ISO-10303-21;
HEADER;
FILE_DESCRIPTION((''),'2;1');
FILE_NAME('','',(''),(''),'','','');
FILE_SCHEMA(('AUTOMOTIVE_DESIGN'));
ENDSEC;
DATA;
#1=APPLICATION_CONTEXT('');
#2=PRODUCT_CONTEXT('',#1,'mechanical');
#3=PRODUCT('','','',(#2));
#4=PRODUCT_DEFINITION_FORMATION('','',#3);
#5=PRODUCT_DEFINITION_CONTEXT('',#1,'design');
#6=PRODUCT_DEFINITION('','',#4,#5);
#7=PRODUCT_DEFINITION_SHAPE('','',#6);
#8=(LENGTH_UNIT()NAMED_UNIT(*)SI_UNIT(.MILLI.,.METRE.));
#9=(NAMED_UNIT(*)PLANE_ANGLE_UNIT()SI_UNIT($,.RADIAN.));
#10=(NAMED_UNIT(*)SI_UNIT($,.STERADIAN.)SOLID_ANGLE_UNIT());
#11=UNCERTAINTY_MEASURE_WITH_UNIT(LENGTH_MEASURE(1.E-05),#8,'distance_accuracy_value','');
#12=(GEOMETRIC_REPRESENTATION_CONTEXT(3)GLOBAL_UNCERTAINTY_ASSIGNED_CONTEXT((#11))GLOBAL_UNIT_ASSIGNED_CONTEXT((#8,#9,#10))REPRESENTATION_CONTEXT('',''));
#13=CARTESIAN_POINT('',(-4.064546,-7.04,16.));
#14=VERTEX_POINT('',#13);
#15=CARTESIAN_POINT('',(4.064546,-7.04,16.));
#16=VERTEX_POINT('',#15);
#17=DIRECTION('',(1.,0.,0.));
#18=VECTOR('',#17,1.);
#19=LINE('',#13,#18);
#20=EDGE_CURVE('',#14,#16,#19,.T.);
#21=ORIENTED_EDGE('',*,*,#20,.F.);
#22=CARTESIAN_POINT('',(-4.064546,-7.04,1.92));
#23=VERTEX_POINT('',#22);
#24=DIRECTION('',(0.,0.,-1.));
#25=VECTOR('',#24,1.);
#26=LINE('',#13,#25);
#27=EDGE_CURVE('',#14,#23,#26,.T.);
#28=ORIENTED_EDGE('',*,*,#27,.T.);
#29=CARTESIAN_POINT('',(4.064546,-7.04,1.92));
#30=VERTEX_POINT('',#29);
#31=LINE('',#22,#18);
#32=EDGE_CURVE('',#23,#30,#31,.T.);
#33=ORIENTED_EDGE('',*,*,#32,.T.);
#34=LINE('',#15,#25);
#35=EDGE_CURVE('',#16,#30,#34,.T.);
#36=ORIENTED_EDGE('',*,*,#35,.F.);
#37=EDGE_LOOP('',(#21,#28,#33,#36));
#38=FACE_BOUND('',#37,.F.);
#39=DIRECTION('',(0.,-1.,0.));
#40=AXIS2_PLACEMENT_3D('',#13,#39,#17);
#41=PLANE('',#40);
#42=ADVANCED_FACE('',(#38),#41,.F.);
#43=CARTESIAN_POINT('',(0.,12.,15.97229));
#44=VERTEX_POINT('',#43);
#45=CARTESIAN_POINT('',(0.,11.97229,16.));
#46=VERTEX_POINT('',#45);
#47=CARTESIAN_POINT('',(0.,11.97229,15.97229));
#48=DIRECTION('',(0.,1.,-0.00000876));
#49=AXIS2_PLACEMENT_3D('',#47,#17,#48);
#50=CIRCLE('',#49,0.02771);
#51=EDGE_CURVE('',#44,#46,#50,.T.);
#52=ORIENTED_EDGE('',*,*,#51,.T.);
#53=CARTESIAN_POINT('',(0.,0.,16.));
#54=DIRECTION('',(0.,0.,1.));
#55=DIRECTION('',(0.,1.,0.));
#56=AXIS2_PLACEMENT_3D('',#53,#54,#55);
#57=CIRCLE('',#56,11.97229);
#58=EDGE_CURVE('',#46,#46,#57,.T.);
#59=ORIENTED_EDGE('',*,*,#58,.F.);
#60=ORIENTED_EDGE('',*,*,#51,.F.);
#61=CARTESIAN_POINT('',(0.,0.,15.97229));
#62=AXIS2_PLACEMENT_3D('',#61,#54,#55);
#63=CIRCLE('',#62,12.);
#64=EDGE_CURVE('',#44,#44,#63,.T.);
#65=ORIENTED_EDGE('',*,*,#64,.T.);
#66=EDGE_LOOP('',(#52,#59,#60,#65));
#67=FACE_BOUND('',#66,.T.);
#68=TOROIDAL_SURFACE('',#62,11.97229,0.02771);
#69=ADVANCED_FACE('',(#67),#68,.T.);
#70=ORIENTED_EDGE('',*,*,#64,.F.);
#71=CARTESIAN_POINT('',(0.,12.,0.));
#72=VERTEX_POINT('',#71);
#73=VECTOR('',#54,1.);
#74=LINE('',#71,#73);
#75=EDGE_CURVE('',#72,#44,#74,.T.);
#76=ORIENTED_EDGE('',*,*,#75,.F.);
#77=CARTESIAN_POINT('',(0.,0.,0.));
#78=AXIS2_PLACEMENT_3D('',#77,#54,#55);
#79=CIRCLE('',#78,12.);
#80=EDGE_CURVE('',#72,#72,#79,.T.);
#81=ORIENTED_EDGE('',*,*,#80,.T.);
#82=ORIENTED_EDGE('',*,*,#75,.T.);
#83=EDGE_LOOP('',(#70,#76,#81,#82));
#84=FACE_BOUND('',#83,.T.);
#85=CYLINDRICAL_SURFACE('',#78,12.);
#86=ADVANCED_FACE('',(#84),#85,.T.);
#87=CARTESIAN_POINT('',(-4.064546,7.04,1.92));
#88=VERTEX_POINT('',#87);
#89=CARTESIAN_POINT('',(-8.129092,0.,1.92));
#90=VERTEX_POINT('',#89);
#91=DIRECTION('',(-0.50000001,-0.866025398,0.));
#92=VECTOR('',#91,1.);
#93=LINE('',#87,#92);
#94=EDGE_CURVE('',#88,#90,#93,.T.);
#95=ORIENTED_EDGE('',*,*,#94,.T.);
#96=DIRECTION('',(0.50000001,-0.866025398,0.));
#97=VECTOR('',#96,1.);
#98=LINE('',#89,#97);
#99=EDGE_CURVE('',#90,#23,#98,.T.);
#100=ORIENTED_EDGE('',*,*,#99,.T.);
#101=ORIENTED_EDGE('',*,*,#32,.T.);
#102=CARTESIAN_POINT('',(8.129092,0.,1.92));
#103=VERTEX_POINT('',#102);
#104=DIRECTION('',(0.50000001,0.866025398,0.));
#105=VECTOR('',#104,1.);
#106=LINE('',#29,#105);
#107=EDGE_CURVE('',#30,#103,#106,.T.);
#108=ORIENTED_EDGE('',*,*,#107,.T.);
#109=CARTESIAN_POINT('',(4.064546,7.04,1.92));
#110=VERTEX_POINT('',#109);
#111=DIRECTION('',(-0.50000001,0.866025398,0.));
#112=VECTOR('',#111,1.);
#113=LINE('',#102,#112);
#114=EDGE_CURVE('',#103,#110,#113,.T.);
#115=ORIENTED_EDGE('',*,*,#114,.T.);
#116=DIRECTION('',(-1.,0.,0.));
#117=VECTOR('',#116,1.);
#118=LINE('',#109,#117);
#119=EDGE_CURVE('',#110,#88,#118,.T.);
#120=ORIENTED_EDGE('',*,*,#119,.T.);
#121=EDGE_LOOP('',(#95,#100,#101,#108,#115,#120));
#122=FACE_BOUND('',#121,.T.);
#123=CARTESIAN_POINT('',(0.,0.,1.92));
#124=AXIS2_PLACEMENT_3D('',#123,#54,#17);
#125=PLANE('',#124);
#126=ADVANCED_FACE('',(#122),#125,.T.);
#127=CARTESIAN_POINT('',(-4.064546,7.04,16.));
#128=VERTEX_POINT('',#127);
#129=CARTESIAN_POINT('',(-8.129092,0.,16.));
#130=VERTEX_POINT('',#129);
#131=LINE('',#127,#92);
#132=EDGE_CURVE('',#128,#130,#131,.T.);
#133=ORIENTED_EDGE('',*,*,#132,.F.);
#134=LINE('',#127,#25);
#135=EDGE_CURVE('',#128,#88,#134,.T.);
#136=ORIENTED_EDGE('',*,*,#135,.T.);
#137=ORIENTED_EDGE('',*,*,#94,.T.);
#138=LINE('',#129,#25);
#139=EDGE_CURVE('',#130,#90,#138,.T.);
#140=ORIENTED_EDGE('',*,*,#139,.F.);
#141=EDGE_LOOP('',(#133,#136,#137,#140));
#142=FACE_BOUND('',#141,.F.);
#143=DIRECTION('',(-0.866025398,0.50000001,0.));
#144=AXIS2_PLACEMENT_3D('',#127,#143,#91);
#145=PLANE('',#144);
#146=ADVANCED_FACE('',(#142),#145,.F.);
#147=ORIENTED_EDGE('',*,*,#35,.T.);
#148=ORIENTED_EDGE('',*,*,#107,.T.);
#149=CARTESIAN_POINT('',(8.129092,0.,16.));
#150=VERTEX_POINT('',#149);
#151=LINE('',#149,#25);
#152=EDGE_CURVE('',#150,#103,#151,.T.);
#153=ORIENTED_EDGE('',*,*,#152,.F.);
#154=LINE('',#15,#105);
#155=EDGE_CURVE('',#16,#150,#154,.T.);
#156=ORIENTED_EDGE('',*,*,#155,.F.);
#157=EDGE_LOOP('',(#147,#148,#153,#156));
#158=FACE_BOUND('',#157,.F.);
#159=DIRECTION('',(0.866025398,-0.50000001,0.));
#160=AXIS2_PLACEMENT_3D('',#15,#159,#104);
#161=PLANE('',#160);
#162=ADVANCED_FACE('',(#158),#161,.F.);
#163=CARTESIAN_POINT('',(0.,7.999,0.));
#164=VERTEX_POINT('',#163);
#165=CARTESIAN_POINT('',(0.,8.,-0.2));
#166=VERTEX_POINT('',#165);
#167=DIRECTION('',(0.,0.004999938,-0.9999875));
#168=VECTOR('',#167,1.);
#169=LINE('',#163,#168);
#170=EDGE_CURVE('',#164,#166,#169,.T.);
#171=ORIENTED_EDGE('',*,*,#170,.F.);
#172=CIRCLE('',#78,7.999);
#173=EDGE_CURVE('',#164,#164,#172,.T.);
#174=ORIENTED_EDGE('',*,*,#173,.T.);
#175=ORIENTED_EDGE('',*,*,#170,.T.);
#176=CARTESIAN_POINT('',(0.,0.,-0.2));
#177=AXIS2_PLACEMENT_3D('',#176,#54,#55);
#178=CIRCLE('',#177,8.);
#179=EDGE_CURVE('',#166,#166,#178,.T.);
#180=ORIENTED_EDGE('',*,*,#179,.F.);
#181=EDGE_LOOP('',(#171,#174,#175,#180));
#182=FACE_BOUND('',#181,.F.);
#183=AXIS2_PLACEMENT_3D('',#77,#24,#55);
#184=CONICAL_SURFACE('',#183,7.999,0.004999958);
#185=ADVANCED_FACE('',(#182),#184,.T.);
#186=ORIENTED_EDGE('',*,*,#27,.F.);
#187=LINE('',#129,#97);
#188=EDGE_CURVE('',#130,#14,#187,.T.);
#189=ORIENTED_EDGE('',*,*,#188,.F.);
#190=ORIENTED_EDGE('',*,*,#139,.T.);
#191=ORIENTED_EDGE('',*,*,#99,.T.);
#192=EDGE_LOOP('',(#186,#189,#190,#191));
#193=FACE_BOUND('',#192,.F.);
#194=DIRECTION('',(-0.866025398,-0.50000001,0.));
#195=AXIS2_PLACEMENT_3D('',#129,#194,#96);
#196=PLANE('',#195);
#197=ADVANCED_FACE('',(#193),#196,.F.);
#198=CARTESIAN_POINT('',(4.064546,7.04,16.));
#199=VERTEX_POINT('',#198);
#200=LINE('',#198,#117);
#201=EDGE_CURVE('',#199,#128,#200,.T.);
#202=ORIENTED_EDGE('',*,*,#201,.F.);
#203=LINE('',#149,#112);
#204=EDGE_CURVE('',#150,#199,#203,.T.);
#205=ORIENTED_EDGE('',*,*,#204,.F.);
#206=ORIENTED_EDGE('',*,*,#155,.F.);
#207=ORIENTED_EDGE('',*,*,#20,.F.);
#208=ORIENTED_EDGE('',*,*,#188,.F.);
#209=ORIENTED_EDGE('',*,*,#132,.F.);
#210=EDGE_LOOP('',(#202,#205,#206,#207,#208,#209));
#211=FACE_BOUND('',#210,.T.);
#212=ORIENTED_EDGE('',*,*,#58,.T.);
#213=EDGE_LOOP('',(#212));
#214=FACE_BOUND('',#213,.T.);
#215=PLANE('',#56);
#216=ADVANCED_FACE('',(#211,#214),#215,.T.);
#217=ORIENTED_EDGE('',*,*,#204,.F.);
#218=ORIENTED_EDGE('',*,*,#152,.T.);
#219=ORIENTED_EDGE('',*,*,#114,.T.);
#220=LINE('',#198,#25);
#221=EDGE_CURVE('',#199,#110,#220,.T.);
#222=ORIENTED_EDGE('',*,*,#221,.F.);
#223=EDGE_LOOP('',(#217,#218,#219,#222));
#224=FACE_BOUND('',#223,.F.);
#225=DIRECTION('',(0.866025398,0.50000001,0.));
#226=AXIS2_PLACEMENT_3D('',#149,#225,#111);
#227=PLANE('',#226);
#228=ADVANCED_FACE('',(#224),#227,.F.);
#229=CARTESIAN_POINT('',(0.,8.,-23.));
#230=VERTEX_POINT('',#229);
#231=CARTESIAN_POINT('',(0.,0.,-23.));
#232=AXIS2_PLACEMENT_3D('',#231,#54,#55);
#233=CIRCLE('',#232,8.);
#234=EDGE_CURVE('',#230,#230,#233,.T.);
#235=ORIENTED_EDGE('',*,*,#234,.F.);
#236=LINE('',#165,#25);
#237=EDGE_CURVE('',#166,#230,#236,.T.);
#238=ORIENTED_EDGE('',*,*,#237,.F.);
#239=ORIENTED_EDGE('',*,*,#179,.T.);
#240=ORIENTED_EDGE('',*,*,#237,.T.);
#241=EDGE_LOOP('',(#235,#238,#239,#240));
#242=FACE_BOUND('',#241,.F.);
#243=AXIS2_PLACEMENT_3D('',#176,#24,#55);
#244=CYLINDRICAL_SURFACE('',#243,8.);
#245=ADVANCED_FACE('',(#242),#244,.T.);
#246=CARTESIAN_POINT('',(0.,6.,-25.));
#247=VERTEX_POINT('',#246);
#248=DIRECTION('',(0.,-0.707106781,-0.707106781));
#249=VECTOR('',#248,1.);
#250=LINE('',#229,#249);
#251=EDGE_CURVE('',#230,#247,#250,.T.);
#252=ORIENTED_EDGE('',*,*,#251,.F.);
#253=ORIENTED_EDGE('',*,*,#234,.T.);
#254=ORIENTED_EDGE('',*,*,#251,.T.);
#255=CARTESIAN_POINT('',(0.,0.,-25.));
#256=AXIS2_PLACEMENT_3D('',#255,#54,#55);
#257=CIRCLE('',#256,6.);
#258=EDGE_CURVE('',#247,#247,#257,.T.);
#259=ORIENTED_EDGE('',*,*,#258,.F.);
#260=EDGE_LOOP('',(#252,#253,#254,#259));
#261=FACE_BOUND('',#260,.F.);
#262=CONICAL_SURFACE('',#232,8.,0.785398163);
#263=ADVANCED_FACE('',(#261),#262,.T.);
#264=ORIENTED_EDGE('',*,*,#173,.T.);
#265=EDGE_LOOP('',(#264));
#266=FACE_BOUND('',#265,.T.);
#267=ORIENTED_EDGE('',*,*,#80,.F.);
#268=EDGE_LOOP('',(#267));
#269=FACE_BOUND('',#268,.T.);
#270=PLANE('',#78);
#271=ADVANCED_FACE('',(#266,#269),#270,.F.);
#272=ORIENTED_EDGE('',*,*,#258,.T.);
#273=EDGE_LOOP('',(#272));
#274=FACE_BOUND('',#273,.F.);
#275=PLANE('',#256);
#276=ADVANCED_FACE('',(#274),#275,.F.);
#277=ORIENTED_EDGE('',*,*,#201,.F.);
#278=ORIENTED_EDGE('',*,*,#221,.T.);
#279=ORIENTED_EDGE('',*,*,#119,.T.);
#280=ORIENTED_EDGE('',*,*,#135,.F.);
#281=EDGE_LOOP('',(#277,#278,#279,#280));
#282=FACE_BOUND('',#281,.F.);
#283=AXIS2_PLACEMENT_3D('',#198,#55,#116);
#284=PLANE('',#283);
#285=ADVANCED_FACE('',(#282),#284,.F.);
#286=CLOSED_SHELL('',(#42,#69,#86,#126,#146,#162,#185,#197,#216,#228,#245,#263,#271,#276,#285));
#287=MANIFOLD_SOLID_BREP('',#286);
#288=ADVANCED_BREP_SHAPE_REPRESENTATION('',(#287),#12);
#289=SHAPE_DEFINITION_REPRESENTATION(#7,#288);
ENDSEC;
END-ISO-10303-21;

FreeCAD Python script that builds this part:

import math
import FreeCAD as App
import Part
import Sketcher

V = App.Vector
Q = App.Units.Quantity

doc = App.newDocument("Part")
body = doc.addObject("PartDesign::Body", "Body")

sketch1 = body.newObject("Sketcher::SketchObject", "Sketch")
sketch1.AttachmentSupport = (doc.getObject("YZ_Plane"), [""])
sketch1.MapMode = "FlatFace"
sketch1.addGeometry(Part.LineSegment(V(7.999, 0, 0), V(12, 0, 0)), False)
sketch1.addGeometry(Part.LineSegment(V(12, 0, 0), V(12, 15.972, 0)), False)
sketch1.addGeometry(Part.ArcOfCircle(Part.Circle(V(11.972, 15.972, 0), V(0, 0, 1), 0.028), math.radians(0), math.radians(90)), False)
sketch1.addGeometry(Part.LineSegment(V(11.972, 16, 0), V(0, 16, 0)), False)
sketch1.addGeometry(Part.LineSegment(V(0, 16, 0), V(0, -25, 0)), False)
sketch1.addGeometry(Part.LineSegment(V(0, -25, 0), V(6, -25, 0)), False)
sketch1.addGeometry(Part.LineSegment(V(6, -25, 0), V(8, -23, 0)), False)
sketch1.addGeometry(Part.LineSegment(V(8, -23, 0), V(8, -0.2, 0)), False)
sketch1.addGeometry(Part.LineSegment(V(8, -0.2, 0), V(7.999, 0, 0)), False)
sketch1.addConstraint(Sketcher.Constraint("Coincident", 0, 2, 1, 1))
sketch1.addConstraint(Sketcher.Constraint("Coincident", 1, 2, 2, 1))
sketch1.addConstraint(Sketcher.Constraint("Coincident", 2, 2, 3, 1))
sketch1.addConstraint(Sketcher.Constraint("Coincident", 3, 2, 4, 1))
sketch1.addConstraint(Sketcher.Constraint("Coincident", 4, 2, 5, 1))
sketch1.addConstraint(Sketcher.Constraint("Coincident", 5, 2, 6, 1))
sketch1.addConstraint(Sketcher.Constraint("Coincident", 6, 2, 7, 1))
sketch1.addConstraint(Sketcher.Constraint("Coincident", 7, 2, 8, 1))
sketch1.addConstraint(Sketcher.Constraint("Coincident", 8, 2, 0, 1))
sketch1.addConstraint(Sketcher.Constraint("Horizontal", 0))
sketch1.addConstraint(Sketcher.Constraint("Vertical", 1))
sketch1.addConstraint(Sketcher.Constraint("Horizontal", 3))
sketch1.addConstraint(Sketcher.Constraint("Vertical", 4))
sketch1.addConstraint(Sketcher.Constraint("Horizontal", 5))
sketch1.addConstraint(Sketcher.Constraint("Vertical", 7))
sketch1.addConstraint(Sketcher.Constraint("PointOnObject", 0, 2, -1))
sketch1.addConstraint(Sketcher.Constraint("PointOnObject", 3, 2, -2))
sketch1.addConstraint(Sketcher.Constraint("Horizontal", 2, 3, 1, 2))
sketch1.addConstraint(Sketcher.Constraint("DistanceX", 5, 1, 5, 2, 6.0))
sketch1.addConstraint(Sketcher.Constraint("DistanceY", 4, 2, 4, 1, 41.0))
sketch1.addConstraint(Sketcher.Constraint("Angle", 6, Q("45 deg")))
sketch1.addConstraint(Sketcher.Constraint("DistanceY", 7, 1, 7, 2, 22.8))
sketch1.addConstraint(Sketcher.Constraint("DistanceX", -1, 1, 0, 2, 12.0))
sketch1.addConstraint(Sketcher.Constraint("DistanceY", -1, 1, 2, 2, 16.0))
sketch1.addConstraint(Sketcher.Constraint("DistanceX", -1, 1, 6, 2, 8.0))
sketch1.addConstraint(Sketcher.Constraint("DistanceX", 0, 1, 0, 2, 4.001))
sketch1.addConstraint(Sketcher.Constraint("Radius", 2, 0.02771))
sketch1.addConstraint(Sketcher.Constraint("DistanceX", 3, 2, 3, 1, 11.97229))
revolution = body.newObject("PartDesign::Revolution", "Revolution")
revolution.Profile = sketch1
revolution.ReferenceAxis = (sketch1, ["V_Axis"])
revolution.Angle = 360

sketch2 = body.newObject("Sketcher::SketchObject", "Sketch001")
sketch2.AttachmentSupport = (doc.getObject("XY_Plane"), [""])
sketch2.MapMode = "FlatFace"
sketch2.AttachmentOffset = App.Placement(V(0, 0, 16), App.Rotation())
sketch2.addGeometry(Part.LineSegment(V(8, 0, 0), V(4, 7, 0)), False)
sketch2.addGeometry(Part.LineSegment(V(4, 7, 0), V(-4, 7, 0)), False)
sketch2.addGeometry(Part.LineSegment(V(-4, 7, 0), V(-8, 0, 0)), False)
sketch2.addGeometry(Part.LineSegment(V(-8, 0, 0), V(-4, -7, 0)), False)
sketch2.addGeometry(Part.LineSegment(V(-4, -7, 0), V(4, -7, 0)), False)
sketch2.addGeometry(Part.LineSegment(V(4, -7, 0), V(8, 0, 0)), False)
sketch2.addConstraint(Sketcher.Constraint("Coincident", 0, 2, 1, 1))
sketch2.addConstraint(Sketcher.Constraint("Coincident", 1, 2, 2, 1))
sketch2.addConstraint(Sketcher.Constraint("Coincident", 2, 2, 3, 1))
sketch2.addConstraint(Sketcher.Constraint("Coincident", 3, 2, 4, 1))
sketch2.addConstraint(Sketcher.Constraint("Coincident", 4, 2, 5, 1))
sketch2.addConstraint(Sketcher.Constraint("Coincident", 5, 2, 0, 1))
sketch2.addConstraint(Sketcher.Constraint("Horizontal", 1))
sketch2.addConstraint(Sketcher.Constraint("Horizontal", 4))
sketch2.addConstraint(Sketcher.Constraint("Symmetric", 0, 2, 3, 2, -1, 1))
sketch2.addConstraint(Sketcher.Constraint("Symmetric", 2, 2, 5, 2, -1, 1))
sketch2.addConstraint(Sketcher.Constraint("PointOnObject", 2, 2, -1))
sketch2.addConstraint(Sketcher.Constraint("Parallel", 2, 5))
sketch2.addConstraint(Sketcher.Constraint("Vertical", 1, 2, 3, 2))
sketch2.addConstraint(Sketcher.Constraint("Angle", 0, Q("120.000001 deg")))
sketch2.addConstraint(Sketcher.Constraint("DistanceY", -1, 1, 0, 2, 7.04))
sketch2.addConstraint(Sketcher.Constraint("DistanceX", 1, 2, 1, 1, 8.129092))
pocket1 = body.newObject("PartDesign::Pocket", "Pocket")
pocket1.Profile = sketch2
pocket1.Length = 14.08

doc.recompute()
